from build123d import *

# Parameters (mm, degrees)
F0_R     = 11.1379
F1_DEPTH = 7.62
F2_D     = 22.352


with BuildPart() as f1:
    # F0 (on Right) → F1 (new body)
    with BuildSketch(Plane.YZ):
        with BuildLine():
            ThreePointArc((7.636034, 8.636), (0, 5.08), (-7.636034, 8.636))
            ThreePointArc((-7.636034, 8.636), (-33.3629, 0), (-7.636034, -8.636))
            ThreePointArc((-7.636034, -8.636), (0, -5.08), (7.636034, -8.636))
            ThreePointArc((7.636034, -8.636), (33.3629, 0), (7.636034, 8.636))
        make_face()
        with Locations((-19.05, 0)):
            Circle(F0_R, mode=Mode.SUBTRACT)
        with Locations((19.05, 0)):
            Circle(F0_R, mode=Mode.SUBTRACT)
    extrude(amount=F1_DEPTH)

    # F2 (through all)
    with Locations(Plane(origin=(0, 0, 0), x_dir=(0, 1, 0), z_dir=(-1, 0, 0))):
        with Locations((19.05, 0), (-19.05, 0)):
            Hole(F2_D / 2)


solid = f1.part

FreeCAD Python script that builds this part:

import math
import FreeCAD as App
import Part
import Sketcher
Q = App.Units.Quantity

doc = App.newDocument("Part")
body = doc.addObject("PartDesign::Body", "Body")

sketch1 = body.newObject("Sketcher::SketchObject", "Sketch")
sketch1.AttachmentSupport = (doc.getObject("YZ_Plane"), [""])
sketch1.MapMode = "FlatFace"
sketch1.addGeometry([
    Part.ArcOfCircle(Part.Circle(App.Vector(0, 15, 0), App.Vector(0, 0, 1), 10), math.radians(-140), math.radians(-40)),
    Part.ArcOfCircle(Part.Circle(App.Vector(-19, 0, 0), App.Vector(0, 0, 1), 14), math.radians(37), math.radians(323)),
    Part.ArcOfCircle(Part.Circle(App.Vector(0, -15, 0), App.Vector(0, 0, 1), 10), math.radians(40), math.radians(140)),
    Part.ArcOfCircle(Part.Circle(App.Vector(19, 0, 0), App.Vector(0, 0, 1), 14), math.radians(-143), math.radians(143)),
    Part.Circle(App.Vector(-19, 0, 0), App.Vector(0, 0, 1), 11),
    Part.Circle(App.Vector(19, 0, 0), App.Vector(0, 0, 1), 11),
], False)
sketch1.addConstraint([
    Sketcher.Constraint("Coincident", 0, 1, 1, 1),
    Sketcher.Constraint("Coincident", 1, 2, 2, 2),
    Sketcher.Constraint("Coincident", 2, 1, 3, 1),
    Sketcher.Constraint("Coincident", 3, 2, 0, 2),
    Sketcher.Constraint("Coincident", 4, 3, 1, 3),
    Sketcher.Constraint("Coincident", 5, 3, 3, 3),
    Sketcher.Constraint("Equal", 0, 2),
    Sketcher.Constraint("Equal", 1, 3),
    Sketcher.Constraint("Equal", 4, 5),
    Sketcher.Constraint("Symmetric", 0, 3, 2, 3, -1, 1),
    Sketcher.Constraint("Symmetric", 1, 3, 3, 3, -1, 1),
    Sketcher.Constraint("Symmetric", 1, 2, 2, 1, -2),
    Sketcher.Constraint("Diameter", 4, Q("0.877 in")),
    Sketcher.Constraint("Radius", 1, Q("0.5635 in")),
    Sketcher.Constraint("DistanceX", 1, 3, 3, 3, Q("1.5 in")),
    Sketcher.Constraint("DistanceY", -1, 1, 0, 1, Q("0.34 in")),
    Sketcher.Constraint("Radius", 0, Q("9.97668 mm")),
])
pad1 = body.newObject("PartDesign::Pad", "Pad")
pad1.Profile = sketch1
pad1.Length = Q("0.3 in")

sketch2 = body.newObject("Sketcher::SketchObject", "Sketch001")
sketch2.AttachmentSupport = (doc.getObject("YZ_Plane"), [""])
sketch2.MapMode = "FlatFace"
sketch2.addGeometry([
    Part.Circle(App.Vector(19, 0, 0), App.Vector(0, 0, 1), 11),
    Part.Circle(App.Vector(-19, 0, 0), App.Vector(0, 0, 1), 11),
], False)
sketch2.addConstraint([
    Sketcher.Constraint("Equal", 0, 1),
    Sketcher.Constraint("Symmetric", 0, 3, 1, 3, -1, 1),
    Sketcher.Constraint("PointOnObject", 0, 3, -1),
    Sketcher.Constraint("Diameter", 0, Q("0.88 in")),
    Sketcher.Constraint("DistanceX", 1, 3, 0, 3, Q("1.5 in")),
])
doc.recompute()
hole = body.newObject("PartDesign::Hole", "Hole")
hole.Profile = sketch2
hole.ThreadType = "None"
hole.Diameter = Q("0.88 in")
hole.DepthType = "ThroughAll"
hole.Reversed = True

doc.recompute()
